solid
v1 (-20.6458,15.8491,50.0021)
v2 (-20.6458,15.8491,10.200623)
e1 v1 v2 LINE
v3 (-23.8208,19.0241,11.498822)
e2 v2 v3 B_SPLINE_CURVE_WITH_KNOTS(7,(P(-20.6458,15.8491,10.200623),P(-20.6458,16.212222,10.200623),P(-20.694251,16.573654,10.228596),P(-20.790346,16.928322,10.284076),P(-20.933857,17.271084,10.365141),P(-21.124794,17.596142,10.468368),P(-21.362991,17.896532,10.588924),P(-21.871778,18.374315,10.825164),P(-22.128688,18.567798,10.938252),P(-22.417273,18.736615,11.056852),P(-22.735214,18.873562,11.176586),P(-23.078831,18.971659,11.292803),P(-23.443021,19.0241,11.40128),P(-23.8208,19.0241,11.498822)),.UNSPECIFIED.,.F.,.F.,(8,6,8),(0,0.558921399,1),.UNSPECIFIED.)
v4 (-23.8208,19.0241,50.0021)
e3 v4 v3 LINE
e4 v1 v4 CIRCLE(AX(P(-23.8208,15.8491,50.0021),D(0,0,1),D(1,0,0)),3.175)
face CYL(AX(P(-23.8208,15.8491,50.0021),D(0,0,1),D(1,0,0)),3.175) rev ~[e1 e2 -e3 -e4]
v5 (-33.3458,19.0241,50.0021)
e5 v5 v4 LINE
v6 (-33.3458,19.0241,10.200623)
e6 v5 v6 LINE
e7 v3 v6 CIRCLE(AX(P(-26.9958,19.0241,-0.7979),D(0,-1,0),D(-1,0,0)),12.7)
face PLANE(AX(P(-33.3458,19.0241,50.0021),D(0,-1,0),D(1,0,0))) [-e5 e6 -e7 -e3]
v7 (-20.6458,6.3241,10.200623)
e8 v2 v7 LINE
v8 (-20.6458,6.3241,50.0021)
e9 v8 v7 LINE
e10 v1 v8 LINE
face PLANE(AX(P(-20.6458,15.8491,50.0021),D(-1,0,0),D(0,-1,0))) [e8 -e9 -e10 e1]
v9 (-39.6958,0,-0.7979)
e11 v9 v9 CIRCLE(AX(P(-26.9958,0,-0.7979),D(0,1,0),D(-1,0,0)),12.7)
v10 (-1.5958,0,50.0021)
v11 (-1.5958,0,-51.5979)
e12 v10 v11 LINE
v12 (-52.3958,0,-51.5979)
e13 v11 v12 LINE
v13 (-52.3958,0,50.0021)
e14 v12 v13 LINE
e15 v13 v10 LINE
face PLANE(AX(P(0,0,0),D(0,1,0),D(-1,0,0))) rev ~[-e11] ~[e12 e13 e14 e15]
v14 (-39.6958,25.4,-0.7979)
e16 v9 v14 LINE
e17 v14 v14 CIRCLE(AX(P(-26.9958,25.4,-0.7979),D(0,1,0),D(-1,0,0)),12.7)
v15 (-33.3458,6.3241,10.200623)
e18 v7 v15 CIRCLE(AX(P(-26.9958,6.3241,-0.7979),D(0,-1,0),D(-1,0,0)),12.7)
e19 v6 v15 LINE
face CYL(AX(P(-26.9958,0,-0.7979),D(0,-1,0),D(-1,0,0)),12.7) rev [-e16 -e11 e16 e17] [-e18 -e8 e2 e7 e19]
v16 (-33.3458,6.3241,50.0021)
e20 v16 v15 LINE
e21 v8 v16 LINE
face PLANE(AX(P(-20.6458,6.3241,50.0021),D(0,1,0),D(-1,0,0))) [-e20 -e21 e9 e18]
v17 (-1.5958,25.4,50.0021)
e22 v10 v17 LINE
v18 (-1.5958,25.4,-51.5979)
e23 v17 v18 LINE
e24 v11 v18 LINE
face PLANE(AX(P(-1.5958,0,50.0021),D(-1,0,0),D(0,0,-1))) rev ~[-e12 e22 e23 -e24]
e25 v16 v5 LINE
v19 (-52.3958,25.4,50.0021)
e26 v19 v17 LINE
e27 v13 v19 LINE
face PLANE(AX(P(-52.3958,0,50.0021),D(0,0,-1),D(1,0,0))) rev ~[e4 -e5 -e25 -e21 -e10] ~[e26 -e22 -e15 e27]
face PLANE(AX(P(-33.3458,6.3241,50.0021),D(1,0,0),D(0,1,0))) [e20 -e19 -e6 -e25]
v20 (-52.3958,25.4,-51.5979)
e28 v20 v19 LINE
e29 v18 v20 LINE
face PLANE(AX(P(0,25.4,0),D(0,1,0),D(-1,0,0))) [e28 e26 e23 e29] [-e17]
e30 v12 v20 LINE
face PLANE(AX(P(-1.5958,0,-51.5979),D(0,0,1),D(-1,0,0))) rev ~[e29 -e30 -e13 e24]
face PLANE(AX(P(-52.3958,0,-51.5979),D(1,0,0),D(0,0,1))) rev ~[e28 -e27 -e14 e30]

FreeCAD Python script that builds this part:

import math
import FreeCAD as App
import Part
import Sketcher

V = App.Vector
Q = App.Units.Quantity


def add_polygon(sketch, points):
    """Adds a closed chain of lines whose ends are joined by coincident constraints."""
    first, n = sketch.GeometryCount, len(points)
    for a, b in zip(points, points[1:] + points[:1]):
        sketch.addGeometry(Part.LineSegment(App.Vector(*a, 0), App.Vector(*b, 0)), False)
    for i in range(n):
        sketch.addConstraint(Sketcher.Constraint("Coincident", first + i, 2, first + (i + 1) % n, 1))

doc = App.newDocument("Part")
body = doc.addObject("PartDesign::Body", "Body")

# Sketch on XZ plane
sketch1 = body.newObject("Sketcher::SketchObject", "Sketch")
sketch1.AttachmentSupport = (doc.getObject("XZ_Plane"), [""])
sketch1.MapMode = "FlatFace"
add_polygon(sketch1, [(-52.3958, -51.5979), (-52.3958, 50.0021), (-1.5958, 50.0021), (-1.5958, -51.5979)])  # lines 0-3
sketch1.addGeometry(Part.Circle(V(-26.9958, -0.7979, 0), V(0, 0, 1), 12.7), False)  # 4
sketch1.addConstraint(Sketcher.Constraint("Vertical", 0))
sketch1.addConstraint(Sketcher.Constraint("Horizontal", 1))
sketch1.addConstraint(Sketcher.Constraint("Vertical", 2))
sketch1.addConstraint(Sketcher.Constraint("Horizontal", 3))
sketch1.addConstraint(Sketcher.Constraint("Diameter", 4, Q("1 in")))
sketch1.addConstraint(Sketcher.Constraint("DistanceX", 1, 1, 1, 2, Q("2 in")))
sketch1.addConstraint(Sketcher.Constraint("DistanceY", 0, 1, 0, 2, Q("4 in")))
sketch1.addConstraint(Sketcher.Constraint("DistanceX", 0, 2, 4, 3, Q("1 in")))
sketch1.addConstraint(Sketcher.Constraint("DistanceY", 4, 3, 0, 2, Q("2 in")))
sketch1.addConstraint(Sketcher.Constraint("DistanceX", 4, 3, -1, 1, Q("26.9958 mm")))
sketch1.addConstraint(Sketcher.Constraint("DistanceY", 4, 3, -1, 1, Q("0.798 mm")))
pad1 = body.newObject("PartDesign::Pad", "Pad")
pad1.Profile = sketch1
pad1.Length = Q("1 in")
pad1.Reversed = True

# Sketch on XY plane
sketch2 = body.newObject("Sketcher::SketchObject", "Sketch001")
sketch2.AttachmentSupport = (doc.getObject("XY_Plane"), [""])
sketch2.MapMode = "FlatFace"
sketch2.AttachmentOffset = App.Placement(V(0, 0, 50.0021), App.Rotation())
sketch2.addGeometry(Part.LineSegment(V(-23.8208, 19.0241, 0), V(-33.3458, 19.0241, 0)), False)
sketch2.addGeometry(Part.LineSegment(V(-33.3458, 19.0241, 0), V(-33.3458, 6.3241, 0)), False)
sketch2.addGeometry(Part.LineSegment(V(-33.3458, 6.3241, 0), V(-20.6458, 6.3241, 0)), False)
sketch2.addGeometry(Part.LineSegment(V(-20.6458, 6.3241, 0), V(-20.6458, 15.8491, 0)), False)
sketch2.addGeometry(Part.ArcOfCircle(Part.Circle(V(-23.8208, 15.8491, 0), V(0, 0, 1), 3.175), math.radians(0), math.radians(90)), False)
sketch2.addConstraint(Sketcher.Constraint("Coincident", 0, 2, 1, 1))
sketch2.addConstraint(Sketcher.Constraint("Coincident", 1, 2, 2, 1))
sketch2.addConstraint(Sketcher.Constraint("Coincident", 2, 2, 3, 1))
sketch2.addConstraint(Sketcher.Constraint("Tangent", 3, 2, 4, 1))
sketch2.addConstraint(Sketcher.Constraint("Tangent", 4, 2, 0, 1))
sketch2.addConstraint(Sketcher.Constraint("Horizontal", 0))
sketch2.addConstraint(Sketcher.Constraint("Vertical", 1))
sketch2.addConstraint(Sketcher.Constraint("Horizontal", 2))
sketch2.addConstraint(Sketcher.Constraint("Vertical", 3))
sketch2.addConstraint(Sketcher.Constraint("Equal", 2, 1))
sketch2.addConstraint(Sketcher.Constraint("DistanceX", 2, 1, 2, 2, Q("0.5 in")))
sketch2.addConstraint(Sketcher.Constraint("Radius", 4, Q("0.125 in")))
sketch2.addConstraint(Sketcher.Constraint("DistanceX", 4, 3, -1, 1, Q("23.8208 mm")))
sketch2.addConstraint(Sketcher.Constraint("DistanceY", -1, 1, 4, 3, Q("15.849 mm")))
pocket1 = body.newObject("PartDesign::Pocket", "Pocket")
pocket1.Profile = sketch2
pocket1.Type = "UpToFirst"

doc.recompute()
